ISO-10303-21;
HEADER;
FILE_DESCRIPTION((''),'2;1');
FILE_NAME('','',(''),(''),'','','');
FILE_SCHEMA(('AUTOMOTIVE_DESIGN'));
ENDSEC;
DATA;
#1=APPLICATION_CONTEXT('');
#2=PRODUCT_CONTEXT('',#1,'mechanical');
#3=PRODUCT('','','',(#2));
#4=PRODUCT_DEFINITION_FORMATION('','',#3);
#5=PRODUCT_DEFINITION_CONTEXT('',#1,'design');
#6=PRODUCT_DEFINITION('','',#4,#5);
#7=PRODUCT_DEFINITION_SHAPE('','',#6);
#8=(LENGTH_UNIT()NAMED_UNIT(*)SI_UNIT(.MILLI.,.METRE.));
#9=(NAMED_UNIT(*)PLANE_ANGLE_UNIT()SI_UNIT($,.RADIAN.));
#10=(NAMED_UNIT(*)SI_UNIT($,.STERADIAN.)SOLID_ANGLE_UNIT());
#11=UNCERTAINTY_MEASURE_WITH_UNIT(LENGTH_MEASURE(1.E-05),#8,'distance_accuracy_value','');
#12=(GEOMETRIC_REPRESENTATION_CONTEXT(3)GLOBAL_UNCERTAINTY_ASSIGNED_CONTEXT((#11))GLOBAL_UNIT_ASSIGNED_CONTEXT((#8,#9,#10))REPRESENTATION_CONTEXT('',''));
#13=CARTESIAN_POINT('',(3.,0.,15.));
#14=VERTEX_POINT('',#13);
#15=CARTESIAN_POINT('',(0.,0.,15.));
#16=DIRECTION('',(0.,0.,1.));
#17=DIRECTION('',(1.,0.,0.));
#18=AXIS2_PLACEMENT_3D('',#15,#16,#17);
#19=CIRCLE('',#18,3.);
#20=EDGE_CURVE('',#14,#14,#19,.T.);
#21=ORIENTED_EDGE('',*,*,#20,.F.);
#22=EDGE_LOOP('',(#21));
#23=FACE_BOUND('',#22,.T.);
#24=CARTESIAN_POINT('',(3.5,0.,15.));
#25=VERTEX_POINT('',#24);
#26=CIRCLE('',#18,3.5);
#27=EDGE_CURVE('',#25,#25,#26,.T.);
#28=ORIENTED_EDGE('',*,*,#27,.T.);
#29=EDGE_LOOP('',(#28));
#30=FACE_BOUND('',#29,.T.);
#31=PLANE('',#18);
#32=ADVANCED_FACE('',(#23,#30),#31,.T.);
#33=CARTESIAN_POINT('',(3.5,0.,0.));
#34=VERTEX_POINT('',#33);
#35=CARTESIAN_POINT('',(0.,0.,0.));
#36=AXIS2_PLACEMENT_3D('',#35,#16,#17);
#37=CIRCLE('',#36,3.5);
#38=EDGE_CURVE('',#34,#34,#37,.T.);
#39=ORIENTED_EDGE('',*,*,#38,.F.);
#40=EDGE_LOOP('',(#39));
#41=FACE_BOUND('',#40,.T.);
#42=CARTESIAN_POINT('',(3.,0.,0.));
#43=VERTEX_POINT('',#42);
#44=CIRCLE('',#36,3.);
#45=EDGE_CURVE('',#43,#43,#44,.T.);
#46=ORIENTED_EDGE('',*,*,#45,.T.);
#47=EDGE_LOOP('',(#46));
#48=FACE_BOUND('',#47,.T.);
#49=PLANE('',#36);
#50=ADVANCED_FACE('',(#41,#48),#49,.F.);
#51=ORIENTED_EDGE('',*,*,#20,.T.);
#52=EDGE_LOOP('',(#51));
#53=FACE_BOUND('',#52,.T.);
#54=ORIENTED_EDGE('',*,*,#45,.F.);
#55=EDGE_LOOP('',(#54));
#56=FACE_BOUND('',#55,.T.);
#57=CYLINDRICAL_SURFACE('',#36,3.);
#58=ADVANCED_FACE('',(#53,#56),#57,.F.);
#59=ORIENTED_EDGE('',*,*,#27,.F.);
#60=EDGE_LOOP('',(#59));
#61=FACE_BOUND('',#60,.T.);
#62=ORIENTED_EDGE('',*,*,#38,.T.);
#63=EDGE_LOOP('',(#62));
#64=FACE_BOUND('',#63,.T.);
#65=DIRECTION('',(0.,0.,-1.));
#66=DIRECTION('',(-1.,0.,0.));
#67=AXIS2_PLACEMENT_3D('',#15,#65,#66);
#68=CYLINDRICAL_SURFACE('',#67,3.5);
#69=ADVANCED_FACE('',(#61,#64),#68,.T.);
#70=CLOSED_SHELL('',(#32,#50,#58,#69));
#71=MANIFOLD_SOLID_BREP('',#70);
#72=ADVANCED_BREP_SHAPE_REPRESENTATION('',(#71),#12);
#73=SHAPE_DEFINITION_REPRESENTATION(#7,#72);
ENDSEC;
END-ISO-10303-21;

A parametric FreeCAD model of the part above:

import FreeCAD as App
import Part
import Sketcher

doc = App.newDocument("Part")
body = doc.addObject("PartDesign::Body", "Body")

# Sketch on XY plane
sketch1 = body.newObject("Sketcher::SketchObject", "Sketch")
sketch1.AttachmentSupport = (doc.getObject("XY_Plane"), [""])
sketch1.MapMode = "FlatFace"
sketch1.addGeometry(Part.Circle(App.Vector(0, 0, 0), App.Vector(0, 0, 1), 3.5), False)
sketch1.addConstraint([
    Sketcher.Constraint("Coincident", 0, 3, -1, 1),
    Sketcher.Constraint("Diameter", 0, 7.0),
])
pad1 = body.newObject("PartDesign::Pad", "Pad")
pad1.Profile = sketch1
pad1.Length = 15

# Sketch on XY plane
sketch2 = body.newObject("Sketcher::SketchObject", "Sketch001")
sketch2.AttachmentSupport = (doc.getObject("XY_Plane"), [""])
sketch2.MapMode = "FlatFace"
sketch2.AttachmentOffset = App.Placement(App.Vector(0, 0, 15), App.Rotation())
sketch2.addGeometry(Part.Circle(App.Vector(0, 0, 0), App.Vector(0, 0, 1), 3), False)
sketch2.addConstraint([
    Sketcher.Constraint("Coincident", 0, 3, -1, 1),
    Sketcher.Constraint("Diameter", 0, 6.0),
])
pocket1 = body.newObject("PartDesign::Pocket", "Pocket")
pocket1.Profile = sketch2
pocket1.Length = 15

doc.recompute()
